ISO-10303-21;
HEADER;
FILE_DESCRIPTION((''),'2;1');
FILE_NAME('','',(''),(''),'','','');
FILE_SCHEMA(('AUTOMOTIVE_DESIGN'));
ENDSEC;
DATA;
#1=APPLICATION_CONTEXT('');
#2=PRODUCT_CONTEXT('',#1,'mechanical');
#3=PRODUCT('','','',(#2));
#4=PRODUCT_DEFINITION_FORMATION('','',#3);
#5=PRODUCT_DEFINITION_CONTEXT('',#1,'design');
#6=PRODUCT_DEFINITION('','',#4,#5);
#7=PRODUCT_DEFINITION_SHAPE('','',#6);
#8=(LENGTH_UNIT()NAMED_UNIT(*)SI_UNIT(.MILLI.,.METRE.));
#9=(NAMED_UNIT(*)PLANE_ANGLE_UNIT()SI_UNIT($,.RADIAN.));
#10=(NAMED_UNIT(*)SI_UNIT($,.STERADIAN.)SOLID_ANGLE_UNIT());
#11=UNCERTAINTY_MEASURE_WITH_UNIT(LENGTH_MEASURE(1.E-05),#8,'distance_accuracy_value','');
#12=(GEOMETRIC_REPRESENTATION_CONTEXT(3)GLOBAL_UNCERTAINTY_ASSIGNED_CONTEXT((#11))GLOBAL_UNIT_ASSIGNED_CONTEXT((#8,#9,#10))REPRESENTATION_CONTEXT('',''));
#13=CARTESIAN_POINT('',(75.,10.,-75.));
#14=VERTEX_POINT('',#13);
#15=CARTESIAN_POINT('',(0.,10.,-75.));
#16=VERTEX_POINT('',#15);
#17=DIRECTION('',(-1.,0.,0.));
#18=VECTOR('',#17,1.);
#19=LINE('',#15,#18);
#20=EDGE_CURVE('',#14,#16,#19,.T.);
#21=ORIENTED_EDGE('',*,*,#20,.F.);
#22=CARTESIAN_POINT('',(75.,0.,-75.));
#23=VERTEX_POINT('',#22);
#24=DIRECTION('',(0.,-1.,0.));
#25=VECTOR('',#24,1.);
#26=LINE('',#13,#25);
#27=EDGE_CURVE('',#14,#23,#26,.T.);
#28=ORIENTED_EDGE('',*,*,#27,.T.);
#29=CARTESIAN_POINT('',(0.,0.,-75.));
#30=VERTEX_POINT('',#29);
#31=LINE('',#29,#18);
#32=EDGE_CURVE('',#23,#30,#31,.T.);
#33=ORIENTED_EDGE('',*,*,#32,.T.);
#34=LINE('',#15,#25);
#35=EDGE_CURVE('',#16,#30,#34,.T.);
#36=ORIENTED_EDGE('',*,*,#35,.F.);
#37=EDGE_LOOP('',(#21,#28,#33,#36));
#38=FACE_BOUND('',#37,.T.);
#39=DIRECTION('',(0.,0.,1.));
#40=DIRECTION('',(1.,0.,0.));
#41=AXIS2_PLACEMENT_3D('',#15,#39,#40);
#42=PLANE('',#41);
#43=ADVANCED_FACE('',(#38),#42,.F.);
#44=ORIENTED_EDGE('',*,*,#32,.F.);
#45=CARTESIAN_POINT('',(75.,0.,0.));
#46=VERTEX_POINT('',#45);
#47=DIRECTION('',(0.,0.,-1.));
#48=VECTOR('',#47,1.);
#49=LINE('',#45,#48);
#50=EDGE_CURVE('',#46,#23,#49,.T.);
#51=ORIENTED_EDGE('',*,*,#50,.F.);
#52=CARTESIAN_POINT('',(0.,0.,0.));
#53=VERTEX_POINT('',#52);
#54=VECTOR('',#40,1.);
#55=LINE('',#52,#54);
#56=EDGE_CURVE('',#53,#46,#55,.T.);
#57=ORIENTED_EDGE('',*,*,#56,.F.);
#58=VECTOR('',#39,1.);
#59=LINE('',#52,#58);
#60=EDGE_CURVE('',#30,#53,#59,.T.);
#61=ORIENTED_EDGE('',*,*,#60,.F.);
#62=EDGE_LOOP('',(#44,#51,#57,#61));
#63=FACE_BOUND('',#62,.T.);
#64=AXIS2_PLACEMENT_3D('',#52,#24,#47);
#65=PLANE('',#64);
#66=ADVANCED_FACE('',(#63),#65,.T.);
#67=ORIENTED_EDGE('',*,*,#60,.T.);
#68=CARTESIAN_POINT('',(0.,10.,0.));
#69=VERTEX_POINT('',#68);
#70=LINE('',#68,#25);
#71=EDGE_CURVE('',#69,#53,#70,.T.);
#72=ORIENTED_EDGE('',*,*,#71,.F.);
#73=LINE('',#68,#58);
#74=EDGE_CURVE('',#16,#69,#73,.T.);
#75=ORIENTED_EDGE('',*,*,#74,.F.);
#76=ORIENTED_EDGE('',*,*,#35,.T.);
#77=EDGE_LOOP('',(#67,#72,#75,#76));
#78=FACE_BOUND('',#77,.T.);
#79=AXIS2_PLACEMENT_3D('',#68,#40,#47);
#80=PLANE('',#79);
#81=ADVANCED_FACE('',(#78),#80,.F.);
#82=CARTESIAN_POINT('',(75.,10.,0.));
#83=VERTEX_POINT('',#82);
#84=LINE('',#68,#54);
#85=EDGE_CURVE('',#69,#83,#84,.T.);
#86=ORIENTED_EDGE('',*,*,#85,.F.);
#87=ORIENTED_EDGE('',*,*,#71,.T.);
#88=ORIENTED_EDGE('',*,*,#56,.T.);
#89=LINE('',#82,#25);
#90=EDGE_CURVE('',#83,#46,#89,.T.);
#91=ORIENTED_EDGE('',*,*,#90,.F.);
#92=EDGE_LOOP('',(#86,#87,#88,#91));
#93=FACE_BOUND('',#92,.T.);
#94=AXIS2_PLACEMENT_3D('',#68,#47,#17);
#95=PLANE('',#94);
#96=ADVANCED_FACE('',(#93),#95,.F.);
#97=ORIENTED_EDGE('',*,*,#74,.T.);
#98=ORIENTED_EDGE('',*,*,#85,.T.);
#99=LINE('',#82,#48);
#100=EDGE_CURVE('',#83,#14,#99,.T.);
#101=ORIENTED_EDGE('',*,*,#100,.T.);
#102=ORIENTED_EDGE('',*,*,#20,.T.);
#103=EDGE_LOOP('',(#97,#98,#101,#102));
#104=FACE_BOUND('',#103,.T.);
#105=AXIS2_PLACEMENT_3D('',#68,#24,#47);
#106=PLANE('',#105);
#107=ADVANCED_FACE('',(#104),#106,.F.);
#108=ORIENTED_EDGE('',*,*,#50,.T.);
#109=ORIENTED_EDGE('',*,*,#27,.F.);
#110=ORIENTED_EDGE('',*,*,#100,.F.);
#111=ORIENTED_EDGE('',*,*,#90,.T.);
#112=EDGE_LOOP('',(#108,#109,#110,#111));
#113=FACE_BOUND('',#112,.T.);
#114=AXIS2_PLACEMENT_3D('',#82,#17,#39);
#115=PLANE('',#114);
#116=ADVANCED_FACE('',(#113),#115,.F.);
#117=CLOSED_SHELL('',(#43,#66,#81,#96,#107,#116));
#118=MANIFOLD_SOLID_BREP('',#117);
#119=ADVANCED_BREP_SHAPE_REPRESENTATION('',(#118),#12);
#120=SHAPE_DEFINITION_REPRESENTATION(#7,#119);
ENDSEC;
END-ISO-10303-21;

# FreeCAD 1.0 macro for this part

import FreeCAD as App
import Part
import Sketcher

V = App.Vector
Q = App.Units.Quantity


def add_polygon(sketch, points):
    """Adds a closed chain of lines whose ends are joined by coincident constraints."""
    first, n = sketch.GeometryCount, len(points)
    for a, b in zip(points, points[1:] + points[:1]):
        sketch.addGeometry(Part.LineSegment(App.Vector(*a, 0), App.Vector(*b, 0)), False)
    for i in range(n):
        sketch.addConstraint(Sketcher.Constraint("Coincident", first + i, 2, first + (i + 1) % n, 1))

doc = App.newDocument("Part")
params = doc.addObject("Spreadsheet::Sheet", "Params")
for row, (alias, value) in enumerate([
    ("sketch1_width", "75 mm"),
    ("pad1_length", "10 mm"),
], start=1):
    params.set(f"A{row}", alias)
    params.set(f"B{row}", "=" + value)
    params.setAlias(f"B{row}", alias)

body = doc.addObject("PartDesign::Body", "Body")

sketch1 = body.newObject("Sketcher::SketchObject", "Sketch")
sketch1.AttachmentSupport = (doc.getObject("XZ_Plane"), [""])
sketch1.MapMode = "FlatFace"
add_polygon(sketch1, [(0, -75), (0, 0), (75, 0), (75, -75)])
sketch1.addConstraint(Sketcher.Constraint("Vertical", 0))
sketch1.addConstraint(Sketcher.Constraint("Horizontal", 1))
sketch1.addConstraint(Sketcher.Constraint("Vertical", 2))
sketch1.addConstraint(Sketcher.Constraint("Horizontal", 3))
sketch1.addConstraint(Sketcher.Constraint("Coincident", 0, 2, -1, 1))
sketch1.addConstraint(Sketcher.Constraint("Equal", 3, 0))
sketch1.addConstraint(Sketcher.Constraint("DistanceX", 1, 1, 1, 2, Q("75 mm")))
sketch1.setExpression("Constraints[10]", "Params.sketch1_width")
pad1 = body.newObject("PartDesign::Pad", "Pad")
pad1.Profile = sketch1
pad1.setExpression("Length", "Params.pad1_length")
pad1.Reversed = True

doc.recompute()
